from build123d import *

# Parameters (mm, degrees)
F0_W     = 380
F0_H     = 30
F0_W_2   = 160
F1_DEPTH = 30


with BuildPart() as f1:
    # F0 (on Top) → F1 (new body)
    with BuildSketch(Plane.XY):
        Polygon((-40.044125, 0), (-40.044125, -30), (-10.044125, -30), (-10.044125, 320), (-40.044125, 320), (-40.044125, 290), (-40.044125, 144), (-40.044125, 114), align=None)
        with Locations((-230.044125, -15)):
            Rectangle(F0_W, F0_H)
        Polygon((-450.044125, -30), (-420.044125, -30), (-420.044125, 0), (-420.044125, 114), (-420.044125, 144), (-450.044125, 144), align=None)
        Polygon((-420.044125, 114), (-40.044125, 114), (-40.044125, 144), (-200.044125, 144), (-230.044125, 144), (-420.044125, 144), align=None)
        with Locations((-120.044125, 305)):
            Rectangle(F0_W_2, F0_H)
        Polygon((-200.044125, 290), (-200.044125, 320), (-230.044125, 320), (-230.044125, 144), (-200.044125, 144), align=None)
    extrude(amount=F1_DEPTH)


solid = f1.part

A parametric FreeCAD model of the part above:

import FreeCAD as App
import Part
import Sketcher
from FreeCAD import Vector


def add_polygon(sketch, points):
    """Adds a closed chain of lines whose ends are joined by coincident constraints."""
    first, n = sketch.GeometryCount, len(points)
    for a, b in zip(points, points[1:] + points[:1]):
        sketch.addGeometry(Part.LineSegment(App.Vector(*a, 0), App.Vector(*b, 0)), False)
    for i in range(n):
        sketch.addConstraint(Sketcher.Constraint("Coincident", first + i, 2, first + (i + 1) % n, 1))

doc = App.newDocument("Part")
body = doc.addObject("PartDesign::Body", "Body")

sketch1 = body.newObject("Sketcher::SketchObject", "Sketch")
sketch1.AttachmentSupport = (doc.getObject("XY_Plane"), [""])
sketch1.MapMode = "FlatFace"
add_polygon(sketch1, [(-10, -30), (-10, 320), (-230, 320), (-230, 144), (-450, 144), (-450, -30)])
add_polygon(sketch1, [(-200, 290), (-40, 290), (-40, 144), (-200, 144)])
add_polygon(sketch1, [(-40, 114), (-40, 0), (-420, 0), (-420, 114)])
sketch1.addConstraint([
    Sketcher.Constraint("Vertical", 0),
    Sketcher.Constraint("Horizontal", 1),
    Sketcher.Constraint("Vertical", 2),
    Sketcher.Constraint("Horizontal", 3),
    Sketcher.Constraint("Vertical", 4),
    Sketcher.Constraint("Horizontal", 5),
    Sketcher.Constraint("Horizontal", 6),
    Sketcher.Constraint("Vertical", 7),
    Sketcher.Constraint("Horizontal", 8),
    Sketcher.Constraint("Vertical", 9),
    Sketcher.Constraint("Vertical", 10),
    Sketcher.Constraint("Horizontal", 11),
    Sketcher.Constraint("Vertical", 12),
    Sketcher.Constraint("Horizontal", 13),
    Sketcher.Constraint("PointOnObject", 10, 2, -1),
    Sketcher.Constraint("Horizontal", 3, 2, 7, 2),
    Sketcher.Constraint("Vertical", 7, 2, 10, 2),
    Sketcher.Constraint("Equal", 1, 3),
    Sketcher.Constraint("DistanceX", 1, 2, 1, 1, 220.0),
    Sketcher.Constraint("DistanceX", 6, 1, 6, 2, 160.0),
    Sketcher.Constraint("DistanceX", 11, 2, 11, 1, 380.0),
    Sketcher.Constraint("DistanceY", 0, 1, 0, 2, 350.0),
    Sketcher.Constraint("DistanceY", 2, 2, 2, 1, 176.0),
    Sketcher.Constraint("DistanceY", 7, 2, 7, 1, 146.0),
    Sketcher.Constraint("DistanceY", 10, 2, 10, 1, 114.0),
    Sketcher.Constraint("DistanceY", -1, 1, 0, 2, 320.0),
    Sketcher.Constraint("DistanceX", 6, 2, 0, 2, 30.0),
    Sketcher.Constraint("DistanceX", 0, 2, -1, 1, 10.044125),
])
pad1 = body.newObject("PartDesign::Pad", "Pad")
pad1.Profile = sketch1
pad1.Length = 30

doc.recompute()
